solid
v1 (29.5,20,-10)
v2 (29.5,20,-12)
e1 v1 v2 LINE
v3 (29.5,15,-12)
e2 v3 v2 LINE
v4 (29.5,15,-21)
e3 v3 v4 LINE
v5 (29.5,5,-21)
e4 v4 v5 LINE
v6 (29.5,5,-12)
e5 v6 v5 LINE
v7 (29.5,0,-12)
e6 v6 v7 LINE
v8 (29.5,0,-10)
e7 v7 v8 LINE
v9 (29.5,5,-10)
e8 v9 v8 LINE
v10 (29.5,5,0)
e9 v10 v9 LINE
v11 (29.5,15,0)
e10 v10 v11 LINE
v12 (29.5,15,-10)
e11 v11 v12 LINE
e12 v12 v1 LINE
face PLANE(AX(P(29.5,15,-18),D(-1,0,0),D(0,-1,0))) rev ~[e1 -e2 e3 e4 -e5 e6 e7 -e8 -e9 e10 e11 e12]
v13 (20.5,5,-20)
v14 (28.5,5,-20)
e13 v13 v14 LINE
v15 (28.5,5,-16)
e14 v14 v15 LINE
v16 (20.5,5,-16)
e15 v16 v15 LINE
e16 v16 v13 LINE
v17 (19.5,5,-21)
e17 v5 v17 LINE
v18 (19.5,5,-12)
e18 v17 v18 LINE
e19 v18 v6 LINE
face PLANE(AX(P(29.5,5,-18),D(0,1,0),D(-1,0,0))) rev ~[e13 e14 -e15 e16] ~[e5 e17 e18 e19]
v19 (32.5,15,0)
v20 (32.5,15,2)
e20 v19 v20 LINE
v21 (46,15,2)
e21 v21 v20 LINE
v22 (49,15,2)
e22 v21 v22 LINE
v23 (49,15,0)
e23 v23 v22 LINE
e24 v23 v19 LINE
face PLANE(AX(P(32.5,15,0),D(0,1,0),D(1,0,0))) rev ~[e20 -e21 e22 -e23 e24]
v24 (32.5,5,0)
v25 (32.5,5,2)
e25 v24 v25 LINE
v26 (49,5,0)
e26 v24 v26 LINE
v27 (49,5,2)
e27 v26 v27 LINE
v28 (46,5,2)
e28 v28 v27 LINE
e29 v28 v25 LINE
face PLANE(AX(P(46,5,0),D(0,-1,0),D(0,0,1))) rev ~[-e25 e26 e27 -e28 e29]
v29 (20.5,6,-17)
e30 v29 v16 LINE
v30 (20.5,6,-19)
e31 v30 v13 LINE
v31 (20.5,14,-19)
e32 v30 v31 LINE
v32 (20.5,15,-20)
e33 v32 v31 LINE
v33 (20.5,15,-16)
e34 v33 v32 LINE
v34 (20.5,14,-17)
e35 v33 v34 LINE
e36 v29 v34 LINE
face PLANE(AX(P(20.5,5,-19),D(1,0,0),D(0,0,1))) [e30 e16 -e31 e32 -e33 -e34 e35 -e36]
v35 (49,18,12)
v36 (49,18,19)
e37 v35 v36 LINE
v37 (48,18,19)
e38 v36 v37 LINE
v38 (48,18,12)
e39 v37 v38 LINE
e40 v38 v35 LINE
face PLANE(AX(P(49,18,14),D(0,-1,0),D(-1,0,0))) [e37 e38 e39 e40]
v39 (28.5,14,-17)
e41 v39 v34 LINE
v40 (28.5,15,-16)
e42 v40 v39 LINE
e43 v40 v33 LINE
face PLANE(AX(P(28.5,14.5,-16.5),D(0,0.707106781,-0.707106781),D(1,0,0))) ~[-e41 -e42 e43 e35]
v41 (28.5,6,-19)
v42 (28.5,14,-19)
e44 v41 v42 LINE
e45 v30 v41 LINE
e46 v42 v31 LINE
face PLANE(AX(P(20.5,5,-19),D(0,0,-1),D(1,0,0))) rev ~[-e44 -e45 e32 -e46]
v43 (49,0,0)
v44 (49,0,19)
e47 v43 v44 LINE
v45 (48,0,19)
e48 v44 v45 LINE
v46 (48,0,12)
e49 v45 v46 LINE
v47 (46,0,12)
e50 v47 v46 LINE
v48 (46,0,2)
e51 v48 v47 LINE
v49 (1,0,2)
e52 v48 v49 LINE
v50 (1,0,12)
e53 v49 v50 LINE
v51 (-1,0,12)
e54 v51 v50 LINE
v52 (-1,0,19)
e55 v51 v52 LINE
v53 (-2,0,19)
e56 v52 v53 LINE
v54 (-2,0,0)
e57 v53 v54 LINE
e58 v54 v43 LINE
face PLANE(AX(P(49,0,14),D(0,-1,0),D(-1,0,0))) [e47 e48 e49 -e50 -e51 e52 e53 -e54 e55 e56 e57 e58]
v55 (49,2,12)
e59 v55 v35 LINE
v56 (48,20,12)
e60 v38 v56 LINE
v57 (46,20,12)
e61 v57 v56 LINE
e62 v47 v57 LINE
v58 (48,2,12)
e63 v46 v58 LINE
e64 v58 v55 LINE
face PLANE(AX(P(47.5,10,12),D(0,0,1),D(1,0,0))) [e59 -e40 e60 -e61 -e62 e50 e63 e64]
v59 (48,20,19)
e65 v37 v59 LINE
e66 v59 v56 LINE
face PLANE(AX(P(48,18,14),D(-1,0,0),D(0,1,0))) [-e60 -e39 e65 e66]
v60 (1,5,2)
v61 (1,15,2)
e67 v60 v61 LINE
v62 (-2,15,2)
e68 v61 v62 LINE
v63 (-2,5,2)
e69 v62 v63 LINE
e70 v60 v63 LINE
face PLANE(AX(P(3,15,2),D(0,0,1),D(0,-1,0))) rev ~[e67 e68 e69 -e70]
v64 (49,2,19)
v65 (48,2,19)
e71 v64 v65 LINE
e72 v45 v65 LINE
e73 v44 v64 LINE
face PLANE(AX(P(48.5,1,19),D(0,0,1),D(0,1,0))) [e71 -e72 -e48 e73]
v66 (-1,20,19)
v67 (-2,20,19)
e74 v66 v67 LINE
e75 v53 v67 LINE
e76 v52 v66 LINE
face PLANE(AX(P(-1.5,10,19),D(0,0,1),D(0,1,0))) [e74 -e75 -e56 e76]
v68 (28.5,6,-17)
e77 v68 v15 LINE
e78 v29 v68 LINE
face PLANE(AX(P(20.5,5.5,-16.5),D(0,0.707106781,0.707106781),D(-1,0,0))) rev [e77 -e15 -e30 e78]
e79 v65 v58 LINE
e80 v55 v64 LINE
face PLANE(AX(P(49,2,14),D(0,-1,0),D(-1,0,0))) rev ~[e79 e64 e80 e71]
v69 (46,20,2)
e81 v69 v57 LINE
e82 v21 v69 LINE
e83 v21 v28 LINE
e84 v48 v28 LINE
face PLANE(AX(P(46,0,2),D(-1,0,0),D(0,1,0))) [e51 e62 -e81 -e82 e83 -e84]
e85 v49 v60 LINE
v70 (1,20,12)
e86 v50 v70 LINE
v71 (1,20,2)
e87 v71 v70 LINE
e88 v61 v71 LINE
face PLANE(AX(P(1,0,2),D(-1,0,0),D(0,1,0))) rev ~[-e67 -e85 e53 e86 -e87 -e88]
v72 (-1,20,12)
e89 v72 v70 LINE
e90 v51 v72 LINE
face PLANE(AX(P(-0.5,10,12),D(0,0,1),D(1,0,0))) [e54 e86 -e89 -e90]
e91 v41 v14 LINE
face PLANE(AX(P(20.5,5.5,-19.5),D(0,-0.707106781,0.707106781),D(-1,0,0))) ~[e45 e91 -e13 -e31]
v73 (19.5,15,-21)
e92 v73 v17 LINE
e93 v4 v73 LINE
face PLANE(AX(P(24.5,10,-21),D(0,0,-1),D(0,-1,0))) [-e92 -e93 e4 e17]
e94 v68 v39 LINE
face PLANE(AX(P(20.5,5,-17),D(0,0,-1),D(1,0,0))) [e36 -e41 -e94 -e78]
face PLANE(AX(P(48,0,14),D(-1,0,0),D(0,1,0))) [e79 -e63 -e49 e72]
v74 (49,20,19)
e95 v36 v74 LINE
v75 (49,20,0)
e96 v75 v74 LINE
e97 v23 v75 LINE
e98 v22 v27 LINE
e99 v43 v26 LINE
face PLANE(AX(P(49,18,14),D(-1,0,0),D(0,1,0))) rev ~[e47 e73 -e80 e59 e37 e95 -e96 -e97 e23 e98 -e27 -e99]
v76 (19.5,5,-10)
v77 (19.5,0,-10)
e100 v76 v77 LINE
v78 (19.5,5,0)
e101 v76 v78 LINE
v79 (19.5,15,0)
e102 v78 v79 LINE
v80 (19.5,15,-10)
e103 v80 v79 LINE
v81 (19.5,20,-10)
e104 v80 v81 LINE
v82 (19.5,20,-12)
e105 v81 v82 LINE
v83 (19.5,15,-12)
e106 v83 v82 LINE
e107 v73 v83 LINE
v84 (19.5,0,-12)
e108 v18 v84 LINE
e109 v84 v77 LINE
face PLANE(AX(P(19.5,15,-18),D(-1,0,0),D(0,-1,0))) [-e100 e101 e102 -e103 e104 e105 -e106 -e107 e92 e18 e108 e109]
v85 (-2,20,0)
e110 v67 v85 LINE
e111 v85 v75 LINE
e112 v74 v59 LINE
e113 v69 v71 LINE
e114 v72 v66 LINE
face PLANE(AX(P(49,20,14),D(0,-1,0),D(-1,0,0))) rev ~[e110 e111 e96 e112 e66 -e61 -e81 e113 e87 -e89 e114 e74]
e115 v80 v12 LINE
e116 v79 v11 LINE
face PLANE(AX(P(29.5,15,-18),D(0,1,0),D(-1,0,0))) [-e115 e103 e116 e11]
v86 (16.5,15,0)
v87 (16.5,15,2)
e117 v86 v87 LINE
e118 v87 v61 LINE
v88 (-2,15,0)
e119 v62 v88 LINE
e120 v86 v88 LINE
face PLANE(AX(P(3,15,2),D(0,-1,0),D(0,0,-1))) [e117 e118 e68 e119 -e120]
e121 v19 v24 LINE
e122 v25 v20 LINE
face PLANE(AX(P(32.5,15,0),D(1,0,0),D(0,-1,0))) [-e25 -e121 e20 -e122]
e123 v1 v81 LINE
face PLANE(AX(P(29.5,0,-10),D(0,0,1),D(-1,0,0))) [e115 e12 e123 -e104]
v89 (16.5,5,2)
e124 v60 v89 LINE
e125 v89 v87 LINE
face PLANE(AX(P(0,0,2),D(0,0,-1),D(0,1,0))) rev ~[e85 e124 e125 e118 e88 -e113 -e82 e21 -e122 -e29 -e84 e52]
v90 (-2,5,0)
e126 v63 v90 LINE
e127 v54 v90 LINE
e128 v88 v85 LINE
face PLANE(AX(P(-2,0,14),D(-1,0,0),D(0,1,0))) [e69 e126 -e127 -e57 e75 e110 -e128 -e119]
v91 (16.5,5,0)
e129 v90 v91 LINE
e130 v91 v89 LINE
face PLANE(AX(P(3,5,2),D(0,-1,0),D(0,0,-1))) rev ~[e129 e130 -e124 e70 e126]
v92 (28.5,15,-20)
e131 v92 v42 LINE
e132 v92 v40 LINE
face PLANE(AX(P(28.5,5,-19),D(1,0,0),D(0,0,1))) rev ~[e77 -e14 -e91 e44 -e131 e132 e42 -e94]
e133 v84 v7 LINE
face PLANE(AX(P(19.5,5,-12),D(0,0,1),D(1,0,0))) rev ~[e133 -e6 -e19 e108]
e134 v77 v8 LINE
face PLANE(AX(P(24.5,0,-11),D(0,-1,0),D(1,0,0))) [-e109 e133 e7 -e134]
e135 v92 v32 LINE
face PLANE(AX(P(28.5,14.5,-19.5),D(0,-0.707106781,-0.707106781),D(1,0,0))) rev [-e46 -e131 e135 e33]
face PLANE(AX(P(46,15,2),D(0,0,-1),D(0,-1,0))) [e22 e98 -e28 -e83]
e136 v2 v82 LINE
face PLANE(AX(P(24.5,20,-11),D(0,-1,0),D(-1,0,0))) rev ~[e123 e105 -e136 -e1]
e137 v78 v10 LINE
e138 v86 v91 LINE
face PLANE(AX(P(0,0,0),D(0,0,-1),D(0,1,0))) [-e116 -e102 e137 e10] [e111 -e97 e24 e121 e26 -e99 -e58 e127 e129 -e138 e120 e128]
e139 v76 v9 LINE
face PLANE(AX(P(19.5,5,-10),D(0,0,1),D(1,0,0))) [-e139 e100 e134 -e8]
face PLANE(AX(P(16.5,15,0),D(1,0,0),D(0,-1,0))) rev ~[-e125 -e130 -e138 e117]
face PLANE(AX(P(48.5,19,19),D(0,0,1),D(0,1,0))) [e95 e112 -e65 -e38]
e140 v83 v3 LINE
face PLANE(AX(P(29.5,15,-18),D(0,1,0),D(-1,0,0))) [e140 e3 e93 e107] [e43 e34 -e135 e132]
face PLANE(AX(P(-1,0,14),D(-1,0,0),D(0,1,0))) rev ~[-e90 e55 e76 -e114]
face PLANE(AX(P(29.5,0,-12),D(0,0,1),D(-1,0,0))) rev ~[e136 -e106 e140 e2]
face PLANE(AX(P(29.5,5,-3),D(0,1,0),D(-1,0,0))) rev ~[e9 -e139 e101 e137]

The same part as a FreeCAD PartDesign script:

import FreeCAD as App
import Part
import Sketcher

V = App.Vector
Q = App.Units.Quantity


def edges_at(feature, points):
    """Names of the edges that pass closest to the given points."""
    edges = feature.Shape.Edges
    near = lambda p: min(range(len(edges)), key=lambda i: edges[i].distToShape(Part.Vertex(*p))[0])
    return sorted({f"Edge{near(p) + 1}" for p in points})

doc = App.newDocument("Part")
params = doc.addObject("Spreadsheet::Sheet", "Params")
for row, (alias, value) in enumerate([
    ("sketch1_width", "49 mm"),
    ("sketch1_height", "20 mm"),
    ("pad1_length", "2 mm"),
    ("sketch2_width", "10 mm"),
    ("pad2_length", "5 mm"),
    ("sketch3_height", "10 mm"),
    ("sketch3_width", "13.5 mm"),
    ("pocket1_length", "5 mm"),
    ("sketch4_width", "3 mm"),
    ("sketch4_height", "20 mm"),
    ("pad3_length", "10 mm"),
    ("sketch5_width", "1 mm"),
    ("sketch5_height", "2 mm"),
    ("pad4_length", "2 mm"),
    ("sketch6_width", "20 mm"),
    ("sketch6_height", "2 mm"),
    ("pad5_length", "2 mm"),
    ("sketch7_width", "3 mm"),
    ("sketch7_height", "20 mm"),
    ("pad6_length", "10 mm"),
    ("sketch8_width", "1 mm"),
    ("sketch8_height", "20 mm"),
    ("pad7_length", "2 mm"),
    ("sketch9_width", "10 mm"),
    ("sketch9_height", "2 mm"),
    ("pocket2_length", "5 mm"),
    ("sketch10_width", "10 mm"),
    ("sketch10_height", "2 mm"),
    ("pocket3_length", "5 mm"),
    ("sketch11_width", "1 mm"),
    ("sketch11_height", "20 mm"),
    ("pad8_length", "5 mm"),
    ("sketch12_width", "1 mm"),
    ("sketch12_height", "2 mm"),
    ("pad9_length", "5 mm"),
    ("sketch13_width", "1 mm"),
    ("sketch13_height", "2 mm"),
    ("pad10_length", "5 mm"),
    ("sketch14_width", "10 mm"),
    ("pad11_length", "15 mm"),
    ("sketch15_width", "10 mm"),
    ("sketch15_height", "2 mm"),
    ("pad12_length", "5 mm"),
    ("sketch16_width", "10 mm"),
    ("pad13_length", "3 mm"),
    ("sketch17_width", "8 mm"),
    ("sketch17_height", "2 mm"),
    ("chamfer_size", "1 mm"),
    ("sketch18_width", "10 mm"),
    ("sketch18_height", "2 mm"),
    ("pad14_length", "20 mm"),
], start=1):
    params.set(f"A{row}", alias)
    params.set(f"B{row}", "=" + value)
    params.setAlias(f"B{row}", alias)

body = doc.addObject("PartDesign::Body", "Body")

# Sketch on XY plane
sketch1 = body.newObject("Sketcher::SketchObject", "Sketch")
sketch1.AttachmentSupport = (doc.getObject("XY_Plane"), [""])
sketch1.MapMode = "FlatFace"
sketch1.addGeometry([
    Part.LineSegment(V(0, 20, 0), V(0, 0, 0)),
    Part.LineSegment(V(0, 0, 0), V(49, 0, 0)),
    Part.LineSegment(V(49, 0, 0), V(49, 20, 0)),
    Part.LineSegment(V(49, 20, 0), V(0, 20, 0)),
], False)
sketch1.addConstraint([
    Sketcher.Constraint("Coincident", 0, 2, 1, 1),
    Sketcher.Constraint("Coincident", 1, 2, 2, 1),
    Sketcher.Constraint("Coincident", 2, 2, 3, 1),
    Sketcher.Constraint("Coincident", 3, 2, 0, 1),
    Sketcher.Constraint("Vertical", 0),
    Sketcher.Constraint("Horizontal", 1),
    Sketcher.Constraint("Vertical", 2),
    Sketcher.Constraint("Horizontal", 3),
    Sketcher.Constraint("Coincident", 0, 2, -1, 1),
    Sketcher.Constraint("DistanceX", 1, 1, 1, 2, Q("49 mm")),
    Sketcher.Constraint("DistanceY", 0, 2, 0, 1, Q("20 mm")),
])
sketch1.setExpression("Constraints[9]", "Params.sketch1_width")
sketch1.setExpression("Constraints[10]", "Params.sketch1_height")
pad1 = body.newObject("PartDesign::Pad", "Pad")
pad1.Profile = sketch1
pad1.setExpression("Length", "Params.pad1_length")

# Sketch on XY plane
sketch2 = body.newObject("Sketcher::SketchObject", "Sketch001")
sketch2.AttachmentSupport = (doc.getObject("XY_Plane"), [""])
sketch2.MapMode = "FlatFace"
sketch2.AttachmentOffset = App.Placement(V(0, 0, 2), App.Rotation())
sketch2.addGeometry([
    Part.LineSegment(V(20, 15, 0), V(20, 5, 0)),
    Part.LineSegment(V(20, 5, 0), V(30, 5, 0)),
    Part.LineSegment(V(30, 5, 0), V(30, 15, 0)),
    Part.LineSegment(V(30, 15, 0), V(20, 15, 0)),
], False)
sketch2.addConstraint([
    Sketcher.Constraint("Coincident", 0, 2, 1, 1),
    Sketcher.Constraint("Coincident", 1, 2, 2, 1),
    Sketcher.Constraint("Coincident", 2, 2, 3, 1),
    Sketcher.Constraint("Coincident", 3, 2, 0, 1),
    Sketcher.Constraint("Vertical", 0),
    Sketcher.Constraint("Horizontal", 1),
    Sketcher.Constraint("Vertical", 2),
    Sketcher.Constraint("Horizontal", 3),
    Sketcher.Constraint("Equal", 3, 0),
    Sketcher.Constraint("DistanceX", 1, 1, 1, 2, Q("10 mm")),
    Sketcher.Constraint("DistanceY", -1, 1, 0, 2, Q("5 mm")),
    Sketcher.Constraint("DistanceX", -1, 1, 0, 2, Q("19.5 mm")),
])
sketch2.setExpression("Constraints[9]", "Params.sketch2_width")
pad2 = body.newObject("PartDesign::Pad", "Pad001")
pad2.Profile = sketch2
pad2.setExpression("Length", "Params.pad2_length")
pad2.Reversed = True

# Sketch on XY plane
sketch3 = body.newObject("Sketcher::SketchObject", "Sketch002")
sketch3.AttachmentSupport = (doc.getObject("XY_Plane"), [""])
sketch3.MapMode = "FlatFace"
sketch3.addGeometry([
    Part.LineSegment(V(32, 5, 0), V(32, 15, 0)),  # 0
    Part.LineSegment(V(32, 15, 0), V(46, 15, 0)),  # 1
    Part.LineSegment(V(46, 15, 0), V(46, 5, 0)),  # 2
    Part.LineSegment(V(46, 5, 0), V(32, 5, 0)),  # 3
    Part.LineSegment(V(3, 5, 0), V(3, 15, 0)),  # 4
    Part.LineSegment(V(3, 15, 0), V(16, 15, 0)),  # 5
    Part.LineSegment(V(16, 15, 0), V(16, 5, 0)),  # 6
    Part.LineSegment(V(16, 5, 0), V(3, 5, 0)),  # 7
], False)
sketch3.addConstraint([
    Sketcher.Constraint("Coincident", 0, 2, 1, 1),
    Sketcher.Constraint("Coincident", 1, 2, 2, 1),
    Sketcher.Constraint("Coincident", 2, 2, 3, 1),
    Sketcher.Constraint("Coincident", 3, 2, 0, 1),
    Sketcher.Constraint("Coincident", 4, 2, 5, 1),
    Sketcher.Constraint("Coincident", 5, 2, 6, 1),
    Sketcher.Constraint("Coincident", 6, 2, 7, 1),
    Sketcher.Constraint("Coincident", 7, 2, 4, 1),
    Sketcher.Constraint("Vertical", 0),
    Sketcher.Constraint("Horizontal", 1),
    Sketcher.Constraint("Vertical", 2),
    Sketcher.Constraint("Horizontal", 3),
    Sketcher.Constraint("Vertical", 4),
    Sketcher.Constraint("Horizontal", 5),
    Sketcher.Constraint("Vertical", 6),
    Sketcher.Constraint("Horizontal", 7),
    Sketcher.Constraint("Horizontal", 1, 2, 4, 2),
    Sketcher.Constraint("Horizontal", 3, 2, 6, 2),
    Sketcher.Constraint("Equal", 3, 5),
    Sketcher.Constraint("DistanceY", 0, 1, 0, 2, Q("10 mm")),
    Sketcher.Constraint("DistanceX", 1, 1, 1, 2, Q("13.5 mm")),
    Sketcher.Constraint("DistanceY", -1, 1, 0, 2, Q("15 mm")),
    Sketcher.Constraint("DistanceX", -1, 1, 1, 2, Q("46 mm")),
    Sketcher.Constraint("DistanceX", -1, 1, 4, 2, Q("3 mm")),
])
sketch3.setExpression("Constraints[19]", "Params.sketch3_height")
sketch3.setExpression("Constraints[20]", "Params.sketch3_width")
pocket1 = body.newObject("PartDesign::Pocket", "Pocket")
pocket1.Profile = sketch3
pocket1.setExpression("Length", "Params.pocket1_length")
pocket1.Reversed = True

# Sketch on XY plane
sketch4 = body.newObject("Sketcher::SketchObject", "Sketch003")
sketch4.AttachmentSupport = (doc.getObject("XY_Plane"), [""])
sketch4.MapMode = "FlatFace"
sketch4.AttachmentOffset = App.Placement(V(0, 0, 2), App.Rotation())
sketch4.addGeometry([
    Part.LineSegment(V(46, 20, 0), V(46, 0, 0)),
    Part.LineSegment(V(46, 0, 0), V(49, 0, 0)),
    Part.LineSegment(V(49, 0, 0), V(49, 20, 0)),
    Part.LineSegment(V(49, 20, 0), V(46, 20, 0)),
], False)
sketch4.addConstraint([
    Sketcher.Constraint("Coincident", 0, 2, 1, 1),
    Sketcher.Constraint("Coincident", 1, 2, 2, 1),
    Sketcher.Constraint("Coincident", 2, 2, 3, 1),
    Sketcher.Constraint("Coincident", 3, 2, 0, 1),
    Sketcher.Constraint("Vertical", 0),
    Sketcher.Constraint("Horizontal", 1),
    Sketcher.Constraint("Vertical", 2),
    Sketcher.Constraint("Horizontal", 3),
    Sketcher.Constraint("PointOnObject", 0, 2, -1),
    Sketcher.Constraint("DistanceX", 1, 1, 1, 2, Q("3 mm")),
    Sketcher.Constraint("DistanceY", 0, 2, 0, 1, Q("20 mm")),
    Sketcher.Constraint("DistanceX", -1, 1, 0, 2, Q("46 mm")),
])
sketch4.setExpression("Constraints[9]", "Params.sketch4_width")
sketch4.setExpression("Constraints[10]", "Params.sketch4_height")
pad3 = body.newObject("PartDesign::Pad", "Pad002")
pad3.Profile = sketch4
pad3.setExpression("Length", "Params.pad3_length")

# Sketch on XY plane
sketch5 = body.newObject("Sketcher::SketchObject", "Sketch004")
sketch5.AttachmentSupport = (doc.getObject("XY_Plane"), [""])
sketch5.MapMode = "FlatFace"
sketch5.AttachmentOffset = App.Placement(V(0, 0, 12), App.Rotation())
sketch5.addGeometry([
    Part.LineSegment(V(48, 20, 0), V(48, 18, 0)),  # 0
    Part.LineSegment(V(48, 18, 0), V(49, 18, 0)),  # 1
    Part.LineSegment(V(49, 18, 0), V(49, 20, 0)),  # 2
    Part.LineSegment(V(49, 20, 0), V(48, 20, 0)),  # 3
    Part.LineSegment(V(48, 2, 0), V(48, 0, 0)),  # 4
    Part.LineSegment(V(48, 0, 0), V(49, 0, 0)),  # 5
    Part.LineSegment(V(49, 0, 0), V(49, 2, 0)),  # 6
    Part.LineSegment(V(49, 2, 0), V(48, 2, 0)),  # 7
], False)
sketch5.addConstraint([
    Sketcher.Constraint("Coincident", 0, 2, 1, 1),
    Sketcher.Constraint("Coincident", 1, 2, 2, 1),
    Sketcher.Constraint("Coincident", 2, 2, 3, 1),
    Sketcher.Constraint("Coincident", 3, 2, 0, 1),
    Sketcher.Constraint("Coincident", 4, 2, 5, 1),
    Sketcher.Constraint("Coincident", 5, 2, 6, 1),
    Sketcher.Constraint("Coincident", 6, 2, 7, 1),
    Sketcher.Constraint("Coincident", 7, 2, 4, 1),
    Sketcher.Constraint("Vertical", 0),
    Sketcher.Constraint("Horizontal", 1),
    Sketcher.Constraint("Vertical", 2),
    Sketcher.Constraint("Horizontal", 3),
    Sketcher.Constraint("Vertical", 4),
    Sketcher.Constraint("Horizontal", 5),
    Sketcher.Constraint("Vertical", 6),
    Sketcher.Constraint("Horizontal", 7),
    Sketcher.Constraint("PointOnObject", 4, 2, -1),
    Sketcher.Constraint("Vertical", 3, 2, 4, 2),
    Sketcher.Constraint("Vertical", 2, 2, 5, 2),
    Sketcher.Constraint("Equal", 2, 4),
    Sketcher.Constraint("DistanceX", 1, 1, 1, 2, Q("1 mm")),
    Sketcher.Constraint("DistanceY", 0, 2, 0, 1, Q("2 mm")),
    Sketcher.Constraint("DistanceX", -1, 1, 0, 2, Q("48 mm")),
    Sketcher.Constraint("DistanceY", -1, 1, 0, 2, Q("18 mm")),
])
sketch5.setExpression("Constraints[20]", "Params.sketch5_width")
sketch5.setExpression("Constraints[21]", "Params.sketch5_height")
pad4 = body.newObject("PartDesign::Pad", "Pad003")
pad4.Profile = sketch5
pad4.setExpression("Length", "Params.pad4_length")

# Sketch on YZ plane
sketch6 = body.newObject("Sketcher::SketchObject", "Sketch005")
sketch6.AttachmentSupport = (doc.getObject("YZ_Plane"), [""])
sketch6.MapMode = "FlatFace"
sketch6.addGeometry([
    Part.LineSegment(V(0, 0, 0), V(0, 2, 0)),
    Part.LineSegment(V(0, 2, 0), V(20, 2, 0)),
    Part.LineSegment(V(20, 2, 0), V(20, 0, 0)),
    Part.LineSegment(V(20, 0, 0), V(0, 0, 0)),
], False)
sketch6.addConstraint([
    Sketcher.Constraint("Coincident", 0, 2, 1, 1),
    Sketcher.Constraint("Coincident", 1, 2, 2, 1),
    Sketcher.Constraint("Coincident", 2, 2, 3, 1),
    Sketcher.Constraint("Coincident", 3, 2, 0, 1),
    Sketcher.Constraint("Vertical", 0),
    Sketcher.Constraint("Horizontal", 1),
    Sketcher.Constraint("Vertical", 2),
    Sketcher.Constraint("Horizontal", 3),
    Sketcher.Constraint("Coincident", 3, 2, -1, 1),
    Sketcher.Constraint("DistanceX", 1, 1, 1, 2, Q("20 mm")),
    Sketcher.Constraint("DistanceY", 0, 1, 0, 2, Q("2 mm")),
])
sketch6.setExpression("Constraints[9]", "Params.sketch6_width")
sketch6.setExpression("Constraints[10]", "Params.sketch6_height")
pad5 = body.newObject("PartDesign::Pad", "Pad004")
pad5.Profile = sketch6
pad5.setExpression("Length", "Params.pad5_length")
pad5.Reversed = True

# Sketch on XY plane
sketch7 = body.newObject("Sketcher::SketchObject", "Sketch006")
sketch7.AttachmentSupport = (doc.getObject("XY_Plane"), [""])
sketch7.MapMode = "FlatFace"
sketch7.AttachmentOffset = App.Placement(V(0, 0, 2), App.Rotation())
sketch7.addGeometry([
    Part.LineSegment(V(-2, 20, 0), V(-2, 0, 0)),
    Part.LineSegment(V(-2, 0, 0), V(1, 0, 0)),
    Part.LineSegment(V(1, 0, 0), V(1, 20, 0)),
    Part.LineSegment(V(1, 20, 0), V(-2, 20, 0)),
], False)
sketch7.addConstraint([
    Sketcher.Constraint("Coincident", 0, 2, 1, 1),
    Sketcher.Constraint("Coincident", 1, 2, 2, 1),
    Sketcher.Constraint("Coincident", 2, 2, 3, 1),
    Sketcher.Constraint("Coincident", 3, 2, 0, 1),
    Sketcher.Constraint("Vertical", 0),
    Sketcher.Constraint("Horizontal", 1),
    Sketcher.Constraint("Vertical", 2),
    Sketcher.Constraint("Horizontal", 3),
    Sketcher.Constraint("PointOnObject", 0, 2, -1),
    Sketcher.Constraint("DistanceX", 1, 1, 1, 2, Q("3 mm")),
    Sketcher.Constraint("DistanceY", 0, 2, 0, 1, Q("20 mm")),
    Sketcher.Constraint("DistanceX", 0, 2, -1, 1, Q("2 mm")),
])
sketch7.setExpression("Constraints[9]", "Params.sketch7_width")
sketch7.setExpression("Constraints[10]", "Params.sketch7_height")
pad6 = body.newObject("PartDesign::Pad", "Pad005")
pad6.Profile = sketch7
pad6.setExpression("Length", "Params.pad6_length")

# Sketch on XY plane
sketch8 = body.newObject("Sketcher::SketchObject", "Sketch007")
sketch8.AttachmentSupport = (doc.getObject("XY_Plane"), [""])
sketch8.MapMode = "FlatFace"
sketch8.AttachmentOffset = App.Placement(V(0, 0, 12), App.Rotation())
sketch8.addGeometry([
    Part.LineSegment(V(-2, 20, 0), V(-2, 0, 0)),
    Part.LineSegment(V(-2, 0, 0), V(-1, 0, 0)),
    Part.LineSegment(V(-1, 0, 0), V(-1, 20, 0)),
    Part.LineSegment(V(-1, 20, 0), V(-2, 20, 0)),
], False)
sketch8.addConstraint([
    Sketcher.Constraint("Coincident", 0, 2, 1, 1),
    Sketcher.Constraint("Coincident", 1, 2, 2, 1),
    Sketcher.Constraint("Coincident", 2, 2, 3, 1),
    Sketcher.Constraint("Coincident", 3, 2, 0, 1),
    Sketcher.Constraint("Vertical", 0),
    Sketcher.Constraint("Horizontal", 1),
    Sketcher.Constraint("Vertical", 2),
    Sketcher.Constraint("Horizontal", 3),
    Sketcher.Constraint("PointOnObject", 0, 2, -1),
    Sketcher.Constraint("DistanceX", 1, 1, 1, 2, Q("1 mm")),
    Sketcher.Constraint("DistanceY", 0, 2, 0, 1, Q("20 mm")),
    Sketcher.Constraint("DistanceX", 0, 2, -1, 1, Q("2 mm")),
])
sketch8.setExpression("Constraints[9]", "Params.sketch8_width")
sketch8.setExpression("Constraints[10]", "Params.sketch8_height")
pad7 = body.newObject("PartDesign::Pad", "Pad006")
pad7.Profile = sketch8
pad7.setExpression("Length", "Params.pad7_length")

# Sketch on YZ plane
sketch9 = body.newObject("Sketcher::SketchObject", "Sketch008")
sketch9.AttachmentSupport = (doc.getObject("YZ_Plane"), [""])
sketch9.MapMode = "FlatFace"
sketch9.AttachmentOffset = App.Placement(V(0, 0, 3), App.Rotation())
sketch9.addGeometry([
    Part.LineSegment(V(15, 0, 0), V(15, 2, 0)),
    Part.LineSegment(V(15, 2, 0), V(5, 2, 0)),
    Part.LineSegment(V(5, 2, 0), V(5, 0, 0)),
    Part.LineSegment(V(5, 0, 0), V(15, 0, 0)),
], False)
sketch9.addConstraint([
    Sketcher.Constraint("Coincident", 0, 2, 1, 1),
    Sketcher.Constraint("Coincident", 1, 2, 2, 1),
    Sketcher.Constraint("Coincident", 2, 2, 3, 1),
    Sketcher.Constraint("Coincident", 3, 2, 0, 1),
    Sketcher.Constraint("Vertical", 0),
    Sketcher.Constraint("Horizontal", 1),
    Sketcher.Constraint("Vertical", 2),
    Sketcher.Constraint("Horizontal", 3),
    Sketcher.Constraint("PointOnObject", 2, 2, -1),
    Sketcher.Constraint("DistanceX", 1, 2, 1, 1, Q("10 mm")),
    Sketcher.Constraint("DistanceY", 0, 1, 0, 2, Q("2 mm")),
    Sketcher.Constraint("DistanceX", -1, 1, 0, 2, Q("15 mm")),
])
sketch9.setExpression("Constraints[9]", "Params.sketch9_width")
sketch9.setExpression("Constraints[10]", "Params.sketch9_height")
pocket2 = body.newObject("PartDesign::Pocket", "Pocket001")
pocket2.Profile = sketch9
pocket2.setExpression("Length", "Params.pocket2_length")

# Sketch on YZ plane
sketch10 = body.newObject("Sketcher::SketchObject", "Sketch009")
sketch10.AttachmentSupport = (doc.getObject("YZ_Plane"), [""])
sketch10.MapMode = "FlatFace"
sketch10.AttachmentOffset = App.Placement(V(0, 0, 46), App.Rotation())
sketch10.addGeometry([
    Part.LineSegment(V(15, 2, 0), V(15, 0, 0)),
    Part.LineSegment(V(15, 0, 0), V(5, 0, 0)),
    Part.LineSegment(V(5, 0, 0), V(5, 2, 0)),
    Part.LineSegment(V(5, 2, 0), V(15, 2, 0)),
], False)
sketch10.addConstraint([
    Sketcher.Constraint("Coincident", 0, 2, 1, 1),
    Sketcher.Constraint("Coincident", 1, 2, 2, 1),
    Sketcher.Constraint("Coincident", 2, 2, 3, 1),
    Sketcher.Constraint("Coincident", 3, 2, 0, 1),
    Sketcher.Constraint("Vertical", 0),
    Sketcher.Constraint("Horizontal", 1),
    Sketcher.Constraint("Vertical", 2),
    Sketcher.Constraint("Horizontal", 3),
    Sketcher.Constraint("PointOnObject", 0, 2, -1),
    Sketcher.Constraint("DistanceX", 1, 2, 1, 1, Q("10 mm")),
    Sketcher.Constraint("DistanceY", 0, 2, 0, 1, Q("2 mm")),
    Sketcher.Constraint("DistanceX", -1, 1, 0, 2, Q("15 mm")),
])
sketch10.setExpression("Constraints[9]", "Params.sketch10_width")
sketch10.setExpression("Constraints[10]", "Params.sketch10_height")
pocket3 = body.newObject("PartDesign::Pocket", "Pocket002")
pocket3.Profile = sketch10
pocket3.setExpression("Length", "Params.pocket3_length")
pocket3.Reversed = True

# Sketch on XY plane
sketch11 = body.newObject("Sketcher::SketchObject", "Sketch010")
sketch11.AttachmentSupport = (doc.getObject("XY_Plane"), [""])
sketch11.MapMode = "FlatFace"
sketch11.AttachmentOffset = App.Placement(V(0, 0, 14), App.Rotation())
sketch11.addGeometry([
    Part.LineSegment(V(-2, 0, 0), V(-1, 0, 0)),
    Part.LineSegment(V(-1, 0, 0), V(-1, 20, 0)),
    Part.LineSegment(V(-1, 20, 0), V(-2, 20, 0)),
    Part.LineSegment(V(-2, 20, 0), V(-2, 0, 0)),
], False)
sketch11.addConstraint([
    Sketcher.Constraint("Coincident", 0, 2, 1, 1),
    Sketcher.Constraint("Coincident", 1, 2, 2, 1),
    Sketcher.Constraint("Coincident", 2, 2, 3, 1),
    Sketcher.Constraint("Coincident", 3, 2, 0, 1),
    Sketcher.Constraint("Horizontal", 0),
    Sketcher.Constraint("Vertical", 1),
    Sketcher.Constraint("Horizontal", 2),
    Sketcher.Constraint("Vertical", 3),
    Sketcher.Constraint("PointOnObject", 0, 2, -1),
    Sketcher.Constraint("DistanceX", 0, 1, 0, 2, Q("1 mm")),
    Sketcher.Constraint("DistanceY", 1, 1, 1, 2, Q("20 mm")),
    Sketcher.Constraint("DistanceX", 0, 2, -1, 1, Q("1 mm")),
])
sketch11.setExpression("Constraints[9]", "Params.sketch11_width")
sketch11.setExpression("Constraints[10]", "Params.sketch11_height")
pad8 = body.newObject("PartDesign::Pad", "Pad007")
pad8.Profile = sketch11
pad8.setExpression("Length", "Params.pad8_length")

# Sketch on XY plane
sketch12 = body.newObject("Sketcher::SketchObject", "Sketch011")
sketch12.AttachmentSupport = (doc.getObject("XY_Plane"), [""])
sketch12.MapMode = "FlatFace"
sketch12.AttachmentOffset = App.Placement(V(0, 0, 14), App.Rotation())
sketch12.addGeometry([
    Part.LineSegment(V(48, 0, 0), V(49, 0, 0)),
    Part.LineSegment(V(49, 0, 0), V(49, 2, 0)),
    Part.LineSegment(V(49, 2, 0), V(48, 2, 0)),
    Part.LineSegment(V(48, 2, 0), V(48, 0, 0)),
], False)
sketch12.addConstraint([
    Sketcher.Constraint("Coincident", 0, 2, 1, 1),
    Sketcher.Constraint("Coincident", 1, 2, 2, 1),
    Sketcher.Constraint("Coincident", 2, 2, 3, 1),
    Sketcher.Constraint("Coincident", 3, 2, 0, 1),
    Sketcher.Constraint("Horizontal", 0),
    Sketcher.Constraint("Vertical", 1),
    Sketcher.Constraint("Horizontal", 2),
    Sketcher.Constraint("Vertical", 3),
    Sketcher.Constraint("PointOnObject", 0, 2, -1),
    Sketcher.Constraint("DistanceX", 0, 1, 0, 2, Q("1 mm")),
    Sketcher.Constraint("DistanceY", 1, 1, 1, 2, Q("2 mm")),
    Sketcher.Constraint("DistanceX", -1, 1, 0, 2, Q("49 mm")),
])
sketch12.setExpression("Constraints[9]", "Params.sketch12_width")
sketch12.setExpression("Constraints[10]", "Params.sketch12_height")
pad9 = body.newObject("PartDesign::Pad", "Pad008")
pad9.Profile = sketch12
pad9.setExpression("Length", "Params.pad9_length")

# Sketch on XY plane
sketch13 = body.newObject("Sketcher::SketchObject", "Sketch012")
sketch13.AttachmentSupport = (doc.getObject("XY_Plane"), [""])
sketch13.MapMode = "FlatFace"
sketch13.AttachmentOffset = App.Placement(V(0, 0, 14), App.Rotation())
sketch13.addGeometry([
    Part.LineSegment(V(48, 18, 0), V(49, 18, 0)),
    Part.LineSegment(V(49, 18, 0), V(49, 20, 0)),
    Part.LineSegment(V(49, 20, 0), V(48, 20, 0)),
    Part.LineSegment(V(48, 20, 0), V(48, 18, 0)),
], False)
sketch13.addConstraint([
    Sketcher.Constraint("Coincident", 0, 2, 1, 1),
    Sketcher.Constraint("Coincident", 1, 2, 2, 1),
    Sketcher.Constraint("Coincident", 2, 2, 3, 1),
    Sketcher.Constraint("Coincident", 3, 2, 0, 1),
    Sketcher.Constraint("Horizontal", 0),
    Sketcher.Constraint("Vertical", 1),
    Sketcher.Constraint("Horizontal", 2),
    Sketcher.Constraint("Vertical", 3),
    Sketcher.Constraint("DistanceX", 0, 1, 0, 2, Q("1 mm")),
    Sketcher.Constraint("DistanceY", 1, 1, 1, 2, Q("2 mm")),
    Sketcher.Constraint("DistanceX", -1, 1, 0, 2, Q("49 mm")),
    Sketcher.Constraint("DistanceY", -1, 1, 0, 2, Q("18 mm")),
])
sketch13.setExpression("Constraints[8]", "Params.sketch13_width")
sketch13.setExpression("Constraints[9]", "Params.sketch13_height")
pad10 = body.newObject("PartDesign::Pad", "Pad009")
pad10.Profile = sketch13
pad10.setExpression("Length", "Params.pad10_length")

# Sketch on XY plane
sketch14 = body.newObject("Sketcher::SketchObject", "Sketch013")
sketch14.AttachmentSupport = (doc.getObject("XY_Plane"), [""])
sketch14.MapMode = "FlatFace"
sketch14.AttachmentOffset = App.Placement(V(0, 0, -3), App.Rotation())
sketch14.addGeometry([
    Part.LineSegment(V(20, 15, 0), V(30, 15, 0)),
    Part.LineSegment(V(30, 15, 0), V(30, 5, 0)),
    Part.LineSegment(V(30, 5, 0), V(20, 5, 0)),
    Part.LineSegment(V(20, 5, 0), V(20, 15, 0)),
], False)
sketch14.addConstraint([
    Sketcher.Constraint("Coincident", 0, 2, 1, 1),
    Sketcher.Constraint("Coincident", 1, 2, 2, 1),
    Sketcher.Constraint("Coincident", 2, 2, 3, 1),
    Sketcher.Constraint("Coincident", 3, 2, 0, 1),
    Sketcher.Constraint("Horizontal", 0),
    Sketcher.Constraint("Vertical", 1),
    Sketcher.Constraint("Horizontal", 2),
    Sketcher.Constraint("Vertical", 3),
    Sketcher.Constraint("Equal", 2, 1),
    Sketcher.Constraint("DistanceX", 0, 1, 0, 2, Q("10 mm")),
    Sketcher.Constraint("DistanceY", -1, 1, 0, 2, Q("15 mm")),
    Sketcher.Constraint("DistanceX", -1, 1, 0, 2, Q("29.5 mm")),
])
sketch14.setExpression("Constraints[9]", "Params.sketch14_width")
pad11 = body.newObject("PartDesign::Pad", "Pad010")
pad11.Profile = sketch14
pad11.setExpression("Length", "Params.pad11_length")
pad11.Reversed = True

# Sketch on XZ plane
sketch15 = body.newObject("Sketcher::SketchObject", "Sketch014")
sketch15.AttachmentSupport = (doc.getObject("XZ_Plane"), [""])
sketch15.MapMode = "FlatFace"
sketch15.AttachmentOffset = App.Placement(V(0, 0, -5), App.Rotation())
sketch15.addGeometry([
    Part.LineSegment(V(19.5, -10, 0), V(19.5, -12, 0)),
    Part.LineSegment(V(19.5, -12, 0), V(29.5, -12, 0)),
    Part.LineSegment(V(29.5, -12, 0), V(29.5, -10, 0)),
    Part.LineSegment(V(29.5, -10, 0), V(19.5, -10, 0)),
], False)
sketch15.addConstraint([
    Sketcher.Constraint("Coincident", 0, 2, 1, 1),
    Sketcher.Constraint("Coincident", 1, 2, 2, 1),
    Sketcher.Constraint("Coincident", 2, 2, 3, 1),
    Sketcher.Constraint("Coincident", 3, 2, 0, 1),
    Sketcher.Constraint("Vertical", 0),
    Sketcher.Constraint("Horizontal", 1),
    Sketcher.Constraint("Vertical", 2),
    Sketcher.Constraint("Horizontal", 3),
    Sketcher.Constraint("DistanceX", 1, 1, 1, 2, Q("10 mm")),
    Sketcher.Constraint("DistanceY", 0, 2, 0, 1, Q("2 mm")),
    Sketcher.Constraint("DistanceY", 0, 2, -1, 1, Q("12 mm")),
    Sketcher.Constraint("DistanceX", -1, 1, 0, 2, Q("19.5 mm")),
])
sketch15.setExpression("Constraints[8]", "Params.sketch15_width")
sketch15.setExpression("Constraints[9]", "Params.sketch15_height")
pad12 = body.newObject("PartDesign::Pad", "Pad011")
pad12.Profile = sketch15
pad12.setExpression("Length", "Params.pad12_length")

# Sketch on XY plane
sketch16 = body.newObject("Sketcher::SketchObject", "Sketch015")
sketch16.AttachmentSupport = (doc.getObject("XY_Plane"), [""])
sketch16.MapMode = "FlatFace"
sketch16.AttachmentOffset = App.Placement(V(0, 0, -18), App.Rotation())
sketch16.addGeometry([
    Part.LineSegment(V(20, 15, 0), V(30, 15, 0)),
    Part.LineSegment(V(30, 15, 0), V(30, 5, 0)),
    Part.LineSegment(V(30, 5, 0), V(20, 5, 0)),
    Part.LineSegment(V(20, 5, 0), V(20, 15, 0)),
], False)
sketch16.addConstraint([
    Sketcher.Constraint("Coincident", 0, 2, 1, 1),
    Sketcher.Constraint("Coincident", 1, 2, 2, 1),
    Sketcher.Constraint("Coincident", 2, 2, 3, 1),
    Sketcher.Constraint("Coincident", 3, 2, 0, 1),
    Sketcher.Constraint("Horizontal", 0),
    Sketcher.Constraint("Vertical", 1),
    Sketcher.Constraint("Horizontal", 2),
    Sketcher.Constraint("Vertical", 3),
    Sketcher.Constraint("Equal", 2, 1),
    Sketcher.Constraint("DistanceX", 0, 1, 0, 2, Q("10 mm")),
    Sketcher.Constraint("DistanceY", -1, 1, 0, 2, Q("15 mm")),
    Sketcher.Constraint("DistanceX", -1, 1, 0, 2, Q("29.5 mm")),
])
sketch16.setExpression("Constraints[9]", "Params.sketch16_width")
pad13 = body.newObject("PartDesign::Pad", "Pad012")
pad13.Profile = sketch16
pad13.setExpression("Length", "Params.pad13_length")
pad13.Reversed = True

# Sketch on XZ plane
sketch17 = body.newObject("Sketcher::SketchObject", "Sketch016")
sketch17.AttachmentSupport = (doc.getObject("XZ_Plane"), [""])
sketch17.MapMode = "FlatFace"
sketch17.AttachmentOffset = App.Placement(V(0, 0, -5), App.Rotation())
sketch17.addGeometry([
    Part.LineSegment(V(20.5, -17, 0), V(20.5, -19, 0)),
    Part.LineSegment(V(20.5, -19, 0), V(28.5, -19, 0)),
    Part.LineSegment(V(28.5, -19, 0), V(28.5, -17, 0)),
    Part.LineSegment(V(28.5, -17, 0), V(20.5, -17, 0)),
], False)
sketch17.addConstraint([
    Sketcher.Constraint("Coincident", 0, 2, 1, 1),
    Sketcher.Constraint("Coincident", 1, 2, 2, 1),
    Sketcher.Constraint("Coincident", 2, 2, 3, 1),
    Sketcher.Constraint("Coincident", 3, 2, 0, 1),
    Sketcher.Constraint("Vertical", 0),
    Sketcher.Constraint("Horizontal", 1),
    Sketcher.Constraint("Vertical", 2),
    Sketcher.Constraint("Horizontal", 3),
    Sketcher.Constraint("DistanceX", 1, 1, 1, 2, Q("8 mm")),
    Sketcher.Constraint("DistanceY", 0, 2, 0, 1, Q("2 mm")),
    Sketcher.Constraint("DistanceY", 0, 2, -1, 1, Q("19 mm")),
    Sketcher.Constraint("DistanceX", -1, 1, 0, 2, Q("20.5 mm")),
])
sketch17.setExpression("Constraints[8]", "Params.sketch17_width")
sketch17.setExpression("Constraints[9]", "Params.sketch17_height")
pocket4 = body.newObject("PartDesign::Pocket", "Pocket003")
pocket4.Profile = sketch17
pocket4.Type = "ThroughAll"
doc.recompute()

chamfer = body.newObject("PartDesign::Chamfer", "Chamfer")
chamfer.Base = (pocket4, edges_at(pocket4, [
    (24.5, 5, -17),
    (24.5, 5, -19),
    (24.5, 15, -17),
    (24.5, 15, -19),
]))
chamfer.setExpression("Size", "Params.chamfer_size")

# Sketch on XZ plane
sketch18 = body.newObject("Sketcher::SketchObject", "Sketch017")
sketch18.AttachmentSupport = (doc.getObject("XZ_Plane"), [""])
sketch18.MapMode = "FlatFace"
sketch18.addGeometry([
    Part.LineSegment(V(29.5, -12, 0), V(29.5, -10, 0)),
    Part.LineSegment(V(29.5, -10, 0), V(19.5, -10, 0)),
    Part.LineSegment(V(19.5, -10, 0), V(19.5, -12, 0)),
    Part.LineSegment(V(19.5, -12, 0), V(29.5, -12, 0)),
], False)
sketch18.addConstraint([
    Sketcher.Constraint("Coincident", 0, 2, 1, 1),
    Sketcher.Constraint("Coincident", 1, 2, 2, 1),
    Sketcher.Constraint("Coincident", 2, 2, 3, 1),
    Sketcher.Constraint("Coincident", 3, 2, 0, 1),
    Sketcher.Constraint("Vertical", 0),
    Sketcher.Constraint("Horizontal", 1),
    Sketcher.Constraint("Vertical", 2),
    Sketcher.Constraint("Horizontal", 3),
    Sketcher.Constraint("DistanceX", 1, 2, 1, 1, Q("10 mm")),
    Sketcher.Constraint("DistanceY", 0, 1, 0, 2, Q("2 mm")),
    Sketcher.Constraint("DistanceY", 0, 2, -1, 1, Q("10 mm")),
    Sketcher.Constraint("DistanceX", -1, 1, 0, 2, Q("29.5 mm")),
])
sketch18.setExpression("Constraints[8]", "Params.sketch18_width")
sketch18.setExpression("Constraints[9]", "Params.sketch18_height")
pad14 = body.newObject("PartDesign::Pad", "Pad013")
pad14.Profile = sketch18
pad14.setExpression("Length", "Params.pad14_length")
pad14.Reversed = True

doc.recompute()
